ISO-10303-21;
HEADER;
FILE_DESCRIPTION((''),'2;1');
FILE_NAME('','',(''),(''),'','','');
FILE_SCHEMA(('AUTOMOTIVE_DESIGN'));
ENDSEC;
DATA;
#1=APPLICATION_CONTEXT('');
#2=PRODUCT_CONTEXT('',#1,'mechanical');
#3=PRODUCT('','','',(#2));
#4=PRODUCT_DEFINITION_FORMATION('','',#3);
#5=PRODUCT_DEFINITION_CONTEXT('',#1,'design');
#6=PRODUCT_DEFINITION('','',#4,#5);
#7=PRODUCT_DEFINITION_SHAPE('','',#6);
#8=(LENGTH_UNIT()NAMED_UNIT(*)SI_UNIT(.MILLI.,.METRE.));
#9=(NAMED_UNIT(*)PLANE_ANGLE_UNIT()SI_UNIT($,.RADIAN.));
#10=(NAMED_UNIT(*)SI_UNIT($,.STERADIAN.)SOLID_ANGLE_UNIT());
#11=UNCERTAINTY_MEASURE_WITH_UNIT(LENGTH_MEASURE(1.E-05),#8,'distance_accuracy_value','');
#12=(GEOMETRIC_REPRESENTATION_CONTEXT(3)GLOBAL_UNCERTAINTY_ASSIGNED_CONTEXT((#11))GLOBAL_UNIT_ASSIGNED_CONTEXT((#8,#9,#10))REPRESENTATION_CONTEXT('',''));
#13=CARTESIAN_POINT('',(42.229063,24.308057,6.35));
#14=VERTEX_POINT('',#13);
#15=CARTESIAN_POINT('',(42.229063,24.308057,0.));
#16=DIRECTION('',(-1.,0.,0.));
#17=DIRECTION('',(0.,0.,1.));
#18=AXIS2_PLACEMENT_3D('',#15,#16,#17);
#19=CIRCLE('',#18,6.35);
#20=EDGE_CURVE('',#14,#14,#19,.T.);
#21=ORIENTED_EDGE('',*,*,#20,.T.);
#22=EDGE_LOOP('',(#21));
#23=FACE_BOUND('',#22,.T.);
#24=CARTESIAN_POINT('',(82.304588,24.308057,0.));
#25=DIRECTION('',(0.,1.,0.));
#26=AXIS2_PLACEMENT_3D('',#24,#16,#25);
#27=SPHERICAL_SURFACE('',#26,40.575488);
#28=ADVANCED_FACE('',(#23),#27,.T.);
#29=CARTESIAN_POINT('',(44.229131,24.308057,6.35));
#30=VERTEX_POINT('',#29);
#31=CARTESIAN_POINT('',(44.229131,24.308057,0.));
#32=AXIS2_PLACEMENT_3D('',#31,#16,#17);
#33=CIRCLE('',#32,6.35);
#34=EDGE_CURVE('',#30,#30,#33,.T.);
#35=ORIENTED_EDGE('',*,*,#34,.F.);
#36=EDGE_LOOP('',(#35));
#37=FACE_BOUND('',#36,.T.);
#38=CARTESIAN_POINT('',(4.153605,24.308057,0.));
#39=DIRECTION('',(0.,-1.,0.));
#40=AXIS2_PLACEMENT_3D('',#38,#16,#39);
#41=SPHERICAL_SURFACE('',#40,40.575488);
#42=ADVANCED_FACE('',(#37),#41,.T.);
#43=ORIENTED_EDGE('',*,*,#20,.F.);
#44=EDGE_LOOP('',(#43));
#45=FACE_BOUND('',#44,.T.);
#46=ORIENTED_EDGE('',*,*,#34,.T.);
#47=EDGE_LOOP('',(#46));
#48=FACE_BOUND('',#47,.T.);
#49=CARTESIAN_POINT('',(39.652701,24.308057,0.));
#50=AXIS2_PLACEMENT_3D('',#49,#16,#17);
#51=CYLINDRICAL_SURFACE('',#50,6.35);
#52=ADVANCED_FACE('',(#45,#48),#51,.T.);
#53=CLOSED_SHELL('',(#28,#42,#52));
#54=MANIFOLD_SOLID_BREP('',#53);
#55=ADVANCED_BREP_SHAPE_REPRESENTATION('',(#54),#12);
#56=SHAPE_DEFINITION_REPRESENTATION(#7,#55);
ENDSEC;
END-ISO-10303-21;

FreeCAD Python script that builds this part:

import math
import FreeCAD as App
import Part
import Sketcher

doc = App.newDocument("Part")
params = doc.addObject("Spreadsheet::Sheet", "Params")
for row, (alias, value) in enumerate([
    ("revolution_angle", "360 deg"),
], start=1):
    params.set(f"A{row}", alias)
    params.set(f"B{row}", "=" + value)
    params.setAlias(f"B{row}", alias)

body = doc.addObject("PartDesign::Body", "Body")

# Sketch on XY plane
sketch1 = body.newObject("Sketcher::SketchObject", "Sketch")
sketch1.AttachmentSupport = (doc.getObject("XY_Plane"), [""])
sketch1.MapMode = "FlatFace"
sketch1.addGeometry([
    Part.LineSegment(App.Vector(44.2, 30.7, 0), App.Vector(42.2, 30.7, 0)),
    Part.ArcOfCircle(Part.Circle(App.Vector(82.3, 24.3, 0), App.Vector(0, 0, 1), 40.6), math.radians(171), math.radians(180)),
    Part.LineSegment(App.Vector(41.7, 24.3, 0), App.Vector(44.7, 24.3, 0)),
    Part.ArcOfCircle(Part.Circle(App.Vector(4.2, 24.3, 0), App.Vector(0, 0, 1), 40.6), math.radians(0), math.radians(9)),
], False)
sketch1.addGeometry(Part.LineSegment(App.Vector(4.2, 24.3, 0), App.Vector(82.3, 24.3, 0)), True)  # axis
sketch1.addConstraint([
    Sketcher.Constraint("Coincident", 0, 2, 1, 1),
    Sketcher.Constraint("Coincident", 1, 2, 2, 1),
    Sketcher.Constraint("Coincident", 2, 2, 3, 1),
    Sketcher.Constraint("Coincident", 3, 2, 0, 1),
    Sketcher.Constraint("Horizontal", 0),
    Sketcher.Constraint("Horizontal", 2),
    Sketcher.Constraint("Horizontal", 4),
    Sketcher.Constraint("Coincident", 4, 1, 3, 3),
    Sketcher.Constraint("Coincident", 4, 2, 1, 3),
    Sketcher.Constraint("Equal", 1, 3),
    Sketcher.Constraint("Horizontal", 3, 3, 1, 2),
    Sketcher.Constraint("Radius", 1, 40.575489),
    Sketcher.Constraint("DistanceY", 3, 3, 0, 2, 6.35),
    Sketcher.Constraint("DistanceX", 0, 2, 0, 1, 2.000069),
    Sketcher.Constraint("DistanceX", -1, 1, 1, 2, 41.7291),
    Sketcher.Constraint("DistanceY", -1, 1, 1, 3, 24.308057),
])
revolution = body.newObject("PartDesign::Revolution", "Revolution")
revolution.Profile = sketch1
revolution.ReferenceAxis = (sketch1, ["Axis0"])
revolution.setExpression("Angle", "Params.revolution_angle")

doc.recompute()
